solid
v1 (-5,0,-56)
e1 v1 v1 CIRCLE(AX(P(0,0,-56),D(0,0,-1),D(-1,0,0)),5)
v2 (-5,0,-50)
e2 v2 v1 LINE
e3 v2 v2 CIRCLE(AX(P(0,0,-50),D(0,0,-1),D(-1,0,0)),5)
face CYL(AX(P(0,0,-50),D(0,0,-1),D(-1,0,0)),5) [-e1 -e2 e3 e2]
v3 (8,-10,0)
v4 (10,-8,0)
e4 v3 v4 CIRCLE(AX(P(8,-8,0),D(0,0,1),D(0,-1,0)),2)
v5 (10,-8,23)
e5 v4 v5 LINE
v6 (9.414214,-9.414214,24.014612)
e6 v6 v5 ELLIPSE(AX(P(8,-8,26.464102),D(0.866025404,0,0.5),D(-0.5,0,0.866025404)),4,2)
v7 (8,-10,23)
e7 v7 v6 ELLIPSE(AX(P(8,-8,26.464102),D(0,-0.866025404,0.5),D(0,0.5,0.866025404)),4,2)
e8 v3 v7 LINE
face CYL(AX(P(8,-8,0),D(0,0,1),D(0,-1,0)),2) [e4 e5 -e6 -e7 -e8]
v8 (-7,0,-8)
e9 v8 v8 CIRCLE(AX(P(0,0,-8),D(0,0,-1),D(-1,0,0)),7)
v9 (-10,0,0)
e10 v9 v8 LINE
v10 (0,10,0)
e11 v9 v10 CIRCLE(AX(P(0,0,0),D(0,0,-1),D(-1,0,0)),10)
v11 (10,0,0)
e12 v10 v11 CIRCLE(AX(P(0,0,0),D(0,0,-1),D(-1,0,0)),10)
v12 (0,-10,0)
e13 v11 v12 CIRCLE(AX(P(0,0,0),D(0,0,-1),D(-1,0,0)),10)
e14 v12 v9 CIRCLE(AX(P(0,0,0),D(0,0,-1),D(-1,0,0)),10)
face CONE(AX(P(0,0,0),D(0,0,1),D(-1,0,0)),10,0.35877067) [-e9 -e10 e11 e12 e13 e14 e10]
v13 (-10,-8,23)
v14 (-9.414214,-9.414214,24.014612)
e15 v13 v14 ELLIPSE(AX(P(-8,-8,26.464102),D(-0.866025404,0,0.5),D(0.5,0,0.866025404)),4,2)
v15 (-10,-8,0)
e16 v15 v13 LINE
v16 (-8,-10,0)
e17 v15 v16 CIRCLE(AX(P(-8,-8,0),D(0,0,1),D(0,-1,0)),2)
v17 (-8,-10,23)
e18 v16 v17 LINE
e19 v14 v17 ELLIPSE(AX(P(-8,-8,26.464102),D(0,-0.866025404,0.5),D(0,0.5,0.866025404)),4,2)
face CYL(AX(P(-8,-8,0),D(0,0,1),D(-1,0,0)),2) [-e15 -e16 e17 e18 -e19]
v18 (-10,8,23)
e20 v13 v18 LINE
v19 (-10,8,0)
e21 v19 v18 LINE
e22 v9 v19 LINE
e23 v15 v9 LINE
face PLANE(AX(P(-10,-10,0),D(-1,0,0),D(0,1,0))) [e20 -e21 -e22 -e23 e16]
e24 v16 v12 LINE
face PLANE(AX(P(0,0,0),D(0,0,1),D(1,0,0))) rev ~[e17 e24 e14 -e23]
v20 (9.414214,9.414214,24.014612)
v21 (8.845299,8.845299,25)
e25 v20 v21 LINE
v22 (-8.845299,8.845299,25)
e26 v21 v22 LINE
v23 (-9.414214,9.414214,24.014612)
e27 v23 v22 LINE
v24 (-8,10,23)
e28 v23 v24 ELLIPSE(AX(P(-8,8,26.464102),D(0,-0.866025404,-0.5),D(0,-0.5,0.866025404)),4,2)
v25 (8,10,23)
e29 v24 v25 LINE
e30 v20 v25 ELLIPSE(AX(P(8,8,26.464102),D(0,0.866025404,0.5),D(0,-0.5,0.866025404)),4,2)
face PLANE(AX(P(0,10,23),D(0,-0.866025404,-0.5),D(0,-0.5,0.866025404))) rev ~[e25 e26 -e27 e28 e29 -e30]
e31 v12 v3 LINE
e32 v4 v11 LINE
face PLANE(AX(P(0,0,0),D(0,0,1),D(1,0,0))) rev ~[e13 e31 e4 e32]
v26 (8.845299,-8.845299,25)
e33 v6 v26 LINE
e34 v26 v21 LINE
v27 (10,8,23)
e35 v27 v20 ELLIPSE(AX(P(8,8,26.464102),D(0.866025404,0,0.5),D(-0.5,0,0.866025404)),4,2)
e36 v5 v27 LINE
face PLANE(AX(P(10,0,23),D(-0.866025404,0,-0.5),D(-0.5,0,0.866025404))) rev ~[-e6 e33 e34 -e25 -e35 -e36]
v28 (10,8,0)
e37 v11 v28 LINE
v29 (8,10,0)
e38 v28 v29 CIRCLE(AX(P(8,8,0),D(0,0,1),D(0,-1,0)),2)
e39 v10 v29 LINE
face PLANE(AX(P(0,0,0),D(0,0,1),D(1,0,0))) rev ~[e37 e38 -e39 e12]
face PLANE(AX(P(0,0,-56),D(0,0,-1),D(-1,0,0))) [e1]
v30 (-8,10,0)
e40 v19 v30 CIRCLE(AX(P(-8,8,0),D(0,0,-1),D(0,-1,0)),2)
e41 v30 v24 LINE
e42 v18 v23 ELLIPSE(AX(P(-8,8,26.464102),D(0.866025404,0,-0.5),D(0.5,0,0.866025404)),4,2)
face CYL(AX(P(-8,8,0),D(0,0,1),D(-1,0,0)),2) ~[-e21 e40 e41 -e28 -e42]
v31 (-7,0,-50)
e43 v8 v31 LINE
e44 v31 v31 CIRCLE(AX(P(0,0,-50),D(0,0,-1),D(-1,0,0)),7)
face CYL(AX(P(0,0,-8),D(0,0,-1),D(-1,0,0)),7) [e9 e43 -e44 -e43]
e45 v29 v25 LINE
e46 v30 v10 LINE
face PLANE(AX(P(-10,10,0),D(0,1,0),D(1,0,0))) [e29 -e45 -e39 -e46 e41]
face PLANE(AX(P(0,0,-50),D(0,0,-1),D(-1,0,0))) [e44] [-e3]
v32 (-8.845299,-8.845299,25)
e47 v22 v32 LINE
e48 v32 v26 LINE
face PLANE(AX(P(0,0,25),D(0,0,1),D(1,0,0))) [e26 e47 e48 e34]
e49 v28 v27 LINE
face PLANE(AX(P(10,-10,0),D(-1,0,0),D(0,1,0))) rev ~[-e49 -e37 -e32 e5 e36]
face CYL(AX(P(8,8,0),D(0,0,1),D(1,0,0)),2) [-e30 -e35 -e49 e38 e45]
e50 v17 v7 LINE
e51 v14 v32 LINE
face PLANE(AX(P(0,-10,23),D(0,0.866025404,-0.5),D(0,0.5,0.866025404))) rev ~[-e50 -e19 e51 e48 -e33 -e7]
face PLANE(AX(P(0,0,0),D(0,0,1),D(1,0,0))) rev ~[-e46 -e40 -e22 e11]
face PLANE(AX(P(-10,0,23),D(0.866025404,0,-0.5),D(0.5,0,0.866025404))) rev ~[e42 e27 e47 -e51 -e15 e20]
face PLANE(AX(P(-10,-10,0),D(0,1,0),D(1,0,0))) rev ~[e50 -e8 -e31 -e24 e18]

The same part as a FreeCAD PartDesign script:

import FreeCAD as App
import Part
import Sketcher
from FreeCAD import Vector
Q = App.Units.Quantity


def edges_at(feature, points):
    """Names of the edges that pass closest to the given points."""
    edges = feature.Shape.Edges
    near = lambda p: min(range(len(edges)), key=lambda i: edges[i].distToShape(Part.Vertex(*p))[0])
    return sorted({f"Edge{near(p) + 1}" for p in points})


def add_polygon(sketch, points):
    """Adds a closed chain of lines whose ends are joined by coincident constraints."""
    first, n = sketch.GeometryCount, len(points)
    for a, b in zip(points, points[1:] + points[:1]):
        sketch.addGeometry(Part.LineSegment(App.Vector(*a, 0), App.Vector(*b, 0)), False)
    for i in range(n):
        sketch.addConstraint(Sketcher.Constraint("Coincident", first + i, 2, first + (i + 1) % n, 1))

doc = App.newDocument("Part")
body = doc.addObject("PartDesign::Body", "Body")

sketch1 = body.newObject("Sketcher::SketchObject", "Sketch")
sketch1.AttachmentSupport = (doc.getObject("XY_Plane"), [""])
sketch1.MapMode = "FlatFace"
add_polygon(sketch1, [(-10, 10), (-10, -10), (10, -10), (10, 10)])
sketch1.addConstraint(Sketcher.Constraint("Vertical", 0))
sketch1.addConstraint(Sketcher.Constraint("Horizontal", 1))
sketch1.addConstraint(Sketcher.Constraint("Vertical", 2))
sketch1.addConstraint(Sketcher.Constraint("Horizontal", 3))
sketch1.addConstraint(Sketcher.Constraint("Symmetric", 0, 2, 2, 2, -1, 1))
sketch1.addConstraint(Sketcher.Constraint("Equal", 3, 0))
sketch1.addConstraint(Sketcher.Constraint("DistanceX", 1, 1, 1, 2, Q("20 mm")))
pad1 = body.newObject("PartDesign::Pad", "Pad")
pad1.Profile = sketch1
pad1.Length = 23

sketch2 = body.newObject("Sketcher::SketchObject", "Sketch001")
sketch2.AttachmentSupport = (doc.getObject("XY_Plane"), [""])
sketch2.MapMode = "FlatFace"
sketch2.AttachmentOffset = App.Placement(Vector(0, 0, 23), App.Rotation())
add_polygon(sketch2, [(-10, 10), (-10, -10), (10, -10), (10, 10)])
sketch2.addConstraint(Sketcher.Constraint("Vertical", 0))
sketch2.addConstraint(Sketcher.Constraint("Horizontal", 1))
sketch2.addConstraint(Sketcher.Constraint("Vertical", 2))
sketch2.addConstraint(Sketcher.Constraint("Horizontal", 3))
sketch2.addConstraint(Sketcher.Constraint("Symmetric", 0, 2, 2, 2, -1, 1))
sketch2.addConstraint(Sketcher.Constraint("Equal", 3, 0))
sketch2.addConstraint(Sketcher.Constraint("DistanceX", 1, 1, 1, 2, Q("20 mm")))
pad2 = body.newObject("PartDesign::Pad", "Pad001")
pad2.Profile = sketch2
pad2.Length = 2
pad2.TaperAngle = -30

sketch3 = body.newObject("Sketcher::SketchObject", "Sketch002")
sketch3.AttachmentSupport = (doc.getObject("XZ_Plane"), [""])
sketch3.MapMode = "FlatFace"
add_polygon(sketch3, [(0, -56), (0, 0), (-10, 0), (-7, -8), (-7, -50), (-5, -50), (-5, -56)])
sketch3.addConstraint(Sketcher.Constraint("Vertical", 0))
sketch3.addConstraint(Sketcher.Constraint("Horizontal", 1))
sketch3.addConstraint(Sketcher.Constraint("Vertical", 3))
sketch3.addConstraint(Sketcher.Constraint("Horizontal", 4))
sketch3.addConstraint(Sketcher.Constraint("Vertical", 5))
sketch3.addConstraint(Sketcher.Constraint("Horizontal", 6))
sketch3.addConstraint(Sketcher.Constraint("Coincident", 0, 2, -1, 1))
sketch3.addConstraint(Sketcher.Constraint("DistanceX", 1, 2, 1, 1, Q("10 mm")))
sketch3.addConstraint(Sketcher.Constraint("DistanceX", 4, 1, 4, 2, Q("2 mm")))
sketch3.addConstraint(Sketcher.Constraint("DistanceX", 6, 1, 6, 2, Q("5 mm")))
sketch3.addConstraint(Sketcher.Constraint("DistanceY", 0, 1, 0, 2, Q("56 mm")))
sketch3.addConstraint(Sketcher.Constraint("DistanceY", 3, 2, 3, 1, Q("42 mm")))
sketch3.addConstraint(Sketcher.Constraint("DistanceY", 5, 2, 5, 1, Q("6 mm")))
revolution = body.newObject("PartDesign::Revolution", "Revolution")
revolution.Profile = sketch3
revolution.ReferenceAxis = (sketch3, ["V_Axis"])
revolution.Angle = 360
doc.recompute()

fillet = body.newObject("PartDesign::Fillet", "Fillet")
fillet.Base = (revolution, edges_at(revolution, [
    (-10, 10, 11.5),
    (-10, -10, 11.5),
    (10, -10, 11.5),
    (10, 10, 11.5),
]))
fillet.Radius = 2

doc.recompute()
